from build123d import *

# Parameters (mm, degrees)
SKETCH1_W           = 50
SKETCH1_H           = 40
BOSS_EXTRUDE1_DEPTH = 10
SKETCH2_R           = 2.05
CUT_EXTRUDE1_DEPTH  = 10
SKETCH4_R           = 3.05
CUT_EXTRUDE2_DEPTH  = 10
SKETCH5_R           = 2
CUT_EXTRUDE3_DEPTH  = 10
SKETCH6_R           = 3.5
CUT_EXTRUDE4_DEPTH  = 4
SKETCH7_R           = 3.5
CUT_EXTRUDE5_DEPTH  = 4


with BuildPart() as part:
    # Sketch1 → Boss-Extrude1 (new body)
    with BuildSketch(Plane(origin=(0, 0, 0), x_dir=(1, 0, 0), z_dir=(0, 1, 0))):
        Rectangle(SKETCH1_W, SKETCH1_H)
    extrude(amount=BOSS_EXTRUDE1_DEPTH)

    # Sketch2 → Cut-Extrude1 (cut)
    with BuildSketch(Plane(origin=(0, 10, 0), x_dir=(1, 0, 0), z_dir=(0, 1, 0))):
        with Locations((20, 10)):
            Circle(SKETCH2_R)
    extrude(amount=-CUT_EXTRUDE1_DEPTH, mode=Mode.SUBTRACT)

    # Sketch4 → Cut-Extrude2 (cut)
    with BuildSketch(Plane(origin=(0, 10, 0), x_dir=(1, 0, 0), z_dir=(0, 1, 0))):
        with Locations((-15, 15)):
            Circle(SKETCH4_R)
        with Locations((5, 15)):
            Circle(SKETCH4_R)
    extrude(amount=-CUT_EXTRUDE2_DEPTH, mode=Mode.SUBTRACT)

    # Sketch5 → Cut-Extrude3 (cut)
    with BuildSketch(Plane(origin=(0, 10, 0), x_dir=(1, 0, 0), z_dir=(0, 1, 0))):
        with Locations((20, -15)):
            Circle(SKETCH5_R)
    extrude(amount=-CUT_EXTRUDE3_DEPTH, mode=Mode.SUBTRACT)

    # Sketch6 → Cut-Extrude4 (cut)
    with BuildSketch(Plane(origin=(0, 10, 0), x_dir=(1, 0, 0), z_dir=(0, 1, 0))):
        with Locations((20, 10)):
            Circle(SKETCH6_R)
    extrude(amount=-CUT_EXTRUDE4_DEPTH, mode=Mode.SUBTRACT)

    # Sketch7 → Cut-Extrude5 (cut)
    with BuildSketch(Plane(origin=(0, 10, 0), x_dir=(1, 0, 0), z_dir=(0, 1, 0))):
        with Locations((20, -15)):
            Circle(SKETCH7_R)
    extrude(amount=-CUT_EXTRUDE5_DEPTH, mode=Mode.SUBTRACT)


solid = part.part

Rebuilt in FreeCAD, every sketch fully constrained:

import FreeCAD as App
import Part
import Sketcher


def add_polygon(sketch, points):
    """Adds a closed chain of lines whose ends are joined by coincident constraints."""
    first, n = sketch.GeometryCount, len(points)
    for a, b in zip(points, points[1:] + points[:1]):
        sketch.addGeometry(Part.LineSegment(App.Vector(*a, 0), App.Vector(*b, 0)), False)
    for i in range(n):
        sketch.addConstraint(Sketcher.Constraint("Coincident", first + i, 2, first + (i + 1) % n, 1))

doc = App.newDocument("Part")
params = doc.addObject("Spreadsheet::Sheet", "Params")
for row, (alias, value) in enumerate([
    ("sketch1_width", "50 mm"),
    ("sketch1_height", "40 mm"),
    ("pad1_length", "10 mm"),
    ("sketch2_diameter", "4.1 mm"),
    ("pocket1_length", "10 mm"),
    ("sketch3_diameter", "6.1 mm"),
    ("pocket2_length", "10 mm"),
    ("sketch4_diameter", "4 mm"),
    ("pocket3_length", "10 mm"),
    ("sketch5_diameter", "7 mm"),
    ("pocket4_length", "4 mm"),
    ("sketch6_diameter", "7 mm"),
    ("pocket5_length", "4 mm"),
], start=1):
    params.set(f"A{row}", alias)
    params.set(f"B{row}", "=" + value)
    params.setAlias(f"B{row}", alias)

body = doc.addObject("PartDesign::Body", "Body")

# Sketch on XZ plane
sketch1 = doc.addObject("Sketcher::SketchObject", "Sketch")
body.addObject(sketch1)
sketch1.AttachmentSupport = (doc.XZ_Plane, [""])
sketch1.MapMode = "FlatFace"
add_polygon(sketch1, [(-25, -20), (-25, 20), (25, 20), (25, -20)])  # lines 0-3
sketch1.addConstraint([
    Sketcher.Constraint("Vertical", 0),
    Sketcher.Constraint("Horizontal", 1),
    Sketcher.Constraint("Vertical", 2),
    Sketcher.Constraint("Horizontal", 3),
    Sketcher.Constraint("Symmetric", 0, 2, 2, 2, -1, 1),
    Sketcher.Constraint("DistanceX", 1, 1, 1, 2, 50.0),
    Sketcher.Constraint("DistanceY", 0, 1, 0, 2, 40.0),
])
sketch1.setExpression("Constraints[9]", "Params.sketch1_width")
sketch1.setExpression("Constraints[10]", "Params.sketch1_height")
pad1 = doc.addObject("PartDesign::Pad", "Pad")
body.addObject(pad1)
pad1.Profile = sketch1
pad1.setExpression("Length", "Params.pad1_length")
pad1.Reversed = True

# Sketch on XZ plane
sketch2 = doc.addObject("Sketcher::SketchObject", "Sketch001")
body.addObject(sketch2)
sketch2.AttachmentSupport = (doc.XZ_Plane, [""])
sketch2.MapMode = "FlatFace"
sketch2.AttachmentOffset = App.Placement(App.Vector(0, 0, -10), App.Rotation())
sketch2.addGeometry(Part.Circle(App.Vector(20, -10, 0), App.Vector(0, 0, 1), 2), False)
sketch2.addConstraint([
    Sketcher.Constraint("Diameter", 0, 4.1),
    Sketcher.Constraint("DistanceX", -1, 1, 0, 3, 20.0),
    Sketcher.Constraint("DistanceY", 0, 3, -1, 1, 10.0),
])
sketch2.setExpression("Constraints[0]", "Params.sketch2_diameter")
pocket1 = doc.addObject("PartDesign::Pocket", "Pocket")
body.addObject(pocket1)
pocket1.Profile = sketch2
pocket1.setExpression("Length", "Params.pocket1_length")
pocket1.Reversed = True

# Sketch on XZ plane
sketch3 = doc.addObject("Sketcher::SketchObject", "Sketch002")
body.addObject(sketch3)
sketch3.AttachmentSupport = (doc.XZ_Plane, [""])
sketch3.MapMode = "FlatFace"
sketch3.AttachmentOffset = App.Placement(App.Vector(0, 0, -10), App.Rotation())
sketch3.addGeometry([
    Part.Circle(App.Vector(-15, -15, 0), App.Vector(0, 0, 1), 3),
    Part.Circle(App.Vector(5, -15, 0), App.Vector(0, 0, 1), 3),
], False)
sketch3.addConstraint([
    Sketcher.Constraint("Equal", 0, 1),
    Sketcher.Constraint("Horizontal", 0, 3, 1, 3),
    Sketcher.Constraint("Diameter", 0, 6.1),
    Sketcher.Constraint("DistanceX", 0, 3, -1, 1, 15.0),
    Sketcher.Constraint("DistanceY", 0, 3, -1, 1, 15.0),
    Sketcher.Constraint("DistanceX", -1, 1, 1, 3, 5.0),
])
sketch3.setExpression("Constraints[2]", "Params.sketch3_diameter")
pocket2 = doc.addObject("PartDesign::Pocket", "Pocket001")
body.addObject(pocket2)
pocket2.Profile = sketch3
pocket2.setExpression("Length", "Params.pocket2_length")
pocket2.Reversed = True

# Sketch on XZ plane
sketch4 = doc.addObject("Sketcher::SketchObject", "Sketch003")
body.addObject(sketch4)
sketch4.AttachmentSupport = (doc.XZ_Plane, [""])
sketch4.MapMode = "FlatFace"
sketch4.AttachmentOffset = App.Placement(App.Vector(0, 0, -10), App.Rotation())
sketch4.addGeometry(Part.Circle(App.Vector(20, 15, 0), App.Vector(0, 0, 1), 2), False)
sketch4.addConstraint([
    Sketcher.Constraint("Diameter", 0, 4.0),
    Sketcher.Constraint("DistanceX", -1, 1, 0, 3, 20.0),
    Sketcher.Constraint("DistanceY", -1, 1, 0, 3, 15.0),
])
sketch4.setExpression("Constraints[0]", "Params.sketch4_diameter")
pocket3 = doc.addObject("PartDesign::Pocket", "Pocket002")
body.addObject(pocket3)
pocket3.Profile = sketch4
pocket3.setExpression("Length", "Params.pocket3_length")
pocket3.Reversed = True

# Sketch on XZ plane
sketch5 = doc.addObject("Sketcher::SketchObject", "Sketch004")
body.addObject(sketch5)
sketch5.AttachmentSupport = (doc.XZ_Plane, [""])
sketch5.MapMode = "FlatFace"
sketch5.AttachmentOffset = App.Placement(App.Vector(0, 0, -10), App.Rotation())
sketch5.addGeometry(Part.Circle(App.Vector(20, -10, 0), App.Vector(0, 0, 1), 3.5), False)
sketch5.addConstraint([
    Sketcher.Constraint("Diameter", 0, 7.0),
    Sketcher.Constraint("DistanceX", -1, 1, 0, 3, 20.0),
    Sketcher.Constraint("DistanceY", 0, 3, -1, 1, 10.0),
])
sketch5.setExpression("Constraints[0]", "Params.sketch5_diameter")
pocket4 = doc.addObject("PartDesign::Pocket", "Pocket003")
body.addObject(pocket4)
pocket4.Profile = sketch5
pocket4.setExpression("Length", "Params.pocket4_length")
pocket4.Reversed = True

# Sketch on XZ plane
sketch6 = doc.addObject("Sketcher::SketchObject", "Sketch005")
body.addObject(sketch6)
sketch6.AttachmentSupport = (doc.XZ_Plane, [""])
sketch6.MapMode = "FlatFace"
sketch6.AttachmentOffset = App.Placement(App.Vector(0, 0, -10), App.Rotation())
sketch6.addGeometry(Part.Circle(App.Vector(20, 15, 0), App.Vector(0, 0, 1), 3.5), False)
sketch6.addConstraint([
    Sketcher.Constraint("Diameter", 0, 7.0),
    Sketcher.Constraint("DistanceX", -1, 1, 0, 3, 20.0),
    Sketcher.Constraint("DistanceY", -1, 1, 0, 3, 15.0),
])
sketch6.setExpression("Constraints[0]", "Params.sketch6_diameter")
pocket5 = doc.addObject("PartDesign::Pocket", "Pocket004")
body.addObject(pocket5)
pocket5.Profile = sketch6
pocket5.setExpression("Length", "Params.pocket5_length")
pocket5.Reversed = True

doc.recompute()
